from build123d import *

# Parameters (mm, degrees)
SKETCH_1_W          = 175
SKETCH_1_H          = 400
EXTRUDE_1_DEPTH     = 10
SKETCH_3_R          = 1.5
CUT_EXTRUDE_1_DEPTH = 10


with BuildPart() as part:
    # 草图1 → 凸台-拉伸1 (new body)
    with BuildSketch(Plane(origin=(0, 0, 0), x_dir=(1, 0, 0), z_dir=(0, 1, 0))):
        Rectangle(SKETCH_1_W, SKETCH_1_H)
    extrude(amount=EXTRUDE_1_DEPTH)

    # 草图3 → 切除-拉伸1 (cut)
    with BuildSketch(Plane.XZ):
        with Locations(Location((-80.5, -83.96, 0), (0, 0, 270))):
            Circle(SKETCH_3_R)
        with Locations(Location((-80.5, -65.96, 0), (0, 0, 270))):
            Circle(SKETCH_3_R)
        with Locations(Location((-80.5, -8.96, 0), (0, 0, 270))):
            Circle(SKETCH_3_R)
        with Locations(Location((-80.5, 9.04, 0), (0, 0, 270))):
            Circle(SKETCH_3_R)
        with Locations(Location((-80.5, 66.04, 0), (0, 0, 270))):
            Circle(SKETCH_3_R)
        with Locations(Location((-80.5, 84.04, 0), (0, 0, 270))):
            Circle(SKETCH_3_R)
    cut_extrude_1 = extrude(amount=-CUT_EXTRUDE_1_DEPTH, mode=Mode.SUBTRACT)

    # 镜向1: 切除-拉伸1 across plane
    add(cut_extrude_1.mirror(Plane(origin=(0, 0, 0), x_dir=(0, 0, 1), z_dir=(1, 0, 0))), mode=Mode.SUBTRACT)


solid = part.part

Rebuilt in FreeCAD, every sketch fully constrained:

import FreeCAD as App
import Part
import Sketcher

doc = App.newDocument("Part")
params = doc.addObject("Spreadsheet::Sheet", "Params")
for row, (alias, value) in enumerate([
    ("sketch1_width", "175 mm"),
    ("sketch1_height", "400 mm"),
    ("pad1_length", "10 mm"),
    ("sketch2_diameter", "3 mm"),
    ("pocket1_length", "10 mm"),
], start=1):
    params.set(f"A{row}", alias)
    params.set(f"B{row}", "=" + value)
    params.setAlias(f"B{row}", alias)

body = doc.addObject("PartDesign::Body", "Body")

# Sketch on XZ plane
sketch1 = doc.addObject("Sketcher::SketchObject", "Sketch")
body.addObject(sketch1)
sketch1.AttachmentSupport = (doc.XZ_Plane, [""])
sketch1.MapMode = "FlatFace"
sketch1.addGeometry([
    Part.LineSegment(App.Vector(-87.5, -200, 0), App.Vector(-87.5, 200, 0)),
    Part.LineSegment(App.Vector(-87.5, 200, 0), App.Vector(87.5, 200, 0)),
    Part.LineSegment(App.Vector(87.5, 200, 0), App.Vector(87.5, -200, 0)),
    Part.LineSegment(App.Vector(87.5, -200, 0), App.Vector(-87.5, -200, 0)),
], False)
sketch1.addConstraint([
    Sketcher.Constraint("Coincident", 0, 2, 1, 1),
    Sketcher.Constraint("Coincident", 1, 2, 2, 1),
    Sketcher.Constraint("Coincident", 2, 2, 3, 1),
    Sketcher.Constraint("Coincident", 3, 2, 0, 1),
    Sketcher.Constraint("Vertical", 0),
    Sketcher.Constraint("Horizontal", 1),
    Sketcher.Constraint("Vertical", 2),
    Sketcher.Constraint("Horizontal", 3),
    Sketcher.Constraint("Symmetric", 0, 2, 2, 2, -1, 1),
    Sketcher.Constraint("DistanceX", 1, 1, 1, 2, 175.0),
    Sketcher.Constraint("DistanceY", 0, 1, 0, 2, 400.0),
])
sketch1.setExpression("Constraints[9]", "Params.sketch1_width")
sketch1.setExpression("Constraints[10]", "Params.sketch1_height")
pad1 = doc.addObject("PartDesign::Pad", "Pad")
body.addObject(pad1)
pad1.Profile = sketch1
pad1.setExpression("Length", "Params.pad1_length")
pad1.Reversed = True

# Sketch on XZ plane
sketch2 = doc.addObject("Sketcher::SketchObject", "Sketch001")
body.addObject(sketch2)
sketch2.AttachmentSupport = (doc.XZ_Plane, [""])
sketch2.MapMode = "FlatFace"
sketch2.addGeometry([
    Part.Circle(App.Vector(-80.5, -83.96, 0), App.Vector(0, 0, 1), 1.5),  # 0
    Part.Circle(App.Vector(-80.5, -65.96, 0), App.Vector(0, 0, 1), 1.5),  # 1
    Part.Circle(App.Vector(-80.5, -8.96, 0), App.Vector(0, 0, 1), 1.5),  # 2
    Part.Circle(App.Vector(-80.5, 9.04, 0), App.Vector(0, 0, 1), 1.5),  # 3
    Part.Circle(App.Vector(-80.5, 66.04, 0), App.Vector(0, 0, 1), 1.5),  # 4
    Part.Circle(App.Vector(-80.5, 84.04, 0), App.Vector(0, 0, 1), 1.5),  # 5
], False)
sketch2.addConstraint([
    Sketcher.Constraint("Equal", 0, 1),
    Sketcher.Constraint("Equal", 1, 2),
    Sketcher.Constraint("Equal", 2, 3),
    Sketcher.Constraint("Equal", 3, 4),
    Sketcher.Constraint("Equal", 4, 5),
    Sketcher.Constraint("Vertical", 0, 3, 1, 3),
    Sketcher.Constraint("Vertical", 1, 3, 2, 3),
    Sketcher.Constraint("Vertical", 2, 3, 3, 3),
    Sketcher.Constraint("Vertical", 3, 3, 4, 3),
    Sketcher.Constraint("Vertical", 4, 3, 5, 3),
    Sketcher.Constraint("Diameter", 0, 3.0),
    Sketcher.Constraint("DistanceY", 0, 3, 1, 3, 18.0),
    Sketcher.Constraint("DistanceY", 1, 3, 2, 3, 57.0),
    Sketcher.Constraint("DistanceY", 2, 3, 3, 3, 18.0),
    Sketcher.Constraint("DistanceY", 3, 3, 4, 3, 57.0),
    Sketcher.Constraint("DistanceY", 4, 3, 5, 3, 18.0),
    Sketcher.Constraint("DistanceX", 0, 3, -1, 1, 80.5),
    Sketcher.Constraint("DistanceY", 0, 3, -1, 1, 83.96),
])
sketch2.setExpression("Constraints[10]", "Params.sketch2_diameter")
pocket1 = doc.addObject("PartDesign::Pocket", "Pocket")
body.addObject(pocket1)
pocket1.Profile = sketch2
pocket1.setExpression("Length", "Params.pocket1_length")
doc.recompute()

mirrored = doc.addObject("PartDesign::Mirrored", "Mirrored")
body.addObject(mirrored)
mirrored.Originals = [pocket1]
mirrored.MirrorPlane = (doc.YZ_Plane, [""])
body.Tip = mirrored

doc.recompute()
